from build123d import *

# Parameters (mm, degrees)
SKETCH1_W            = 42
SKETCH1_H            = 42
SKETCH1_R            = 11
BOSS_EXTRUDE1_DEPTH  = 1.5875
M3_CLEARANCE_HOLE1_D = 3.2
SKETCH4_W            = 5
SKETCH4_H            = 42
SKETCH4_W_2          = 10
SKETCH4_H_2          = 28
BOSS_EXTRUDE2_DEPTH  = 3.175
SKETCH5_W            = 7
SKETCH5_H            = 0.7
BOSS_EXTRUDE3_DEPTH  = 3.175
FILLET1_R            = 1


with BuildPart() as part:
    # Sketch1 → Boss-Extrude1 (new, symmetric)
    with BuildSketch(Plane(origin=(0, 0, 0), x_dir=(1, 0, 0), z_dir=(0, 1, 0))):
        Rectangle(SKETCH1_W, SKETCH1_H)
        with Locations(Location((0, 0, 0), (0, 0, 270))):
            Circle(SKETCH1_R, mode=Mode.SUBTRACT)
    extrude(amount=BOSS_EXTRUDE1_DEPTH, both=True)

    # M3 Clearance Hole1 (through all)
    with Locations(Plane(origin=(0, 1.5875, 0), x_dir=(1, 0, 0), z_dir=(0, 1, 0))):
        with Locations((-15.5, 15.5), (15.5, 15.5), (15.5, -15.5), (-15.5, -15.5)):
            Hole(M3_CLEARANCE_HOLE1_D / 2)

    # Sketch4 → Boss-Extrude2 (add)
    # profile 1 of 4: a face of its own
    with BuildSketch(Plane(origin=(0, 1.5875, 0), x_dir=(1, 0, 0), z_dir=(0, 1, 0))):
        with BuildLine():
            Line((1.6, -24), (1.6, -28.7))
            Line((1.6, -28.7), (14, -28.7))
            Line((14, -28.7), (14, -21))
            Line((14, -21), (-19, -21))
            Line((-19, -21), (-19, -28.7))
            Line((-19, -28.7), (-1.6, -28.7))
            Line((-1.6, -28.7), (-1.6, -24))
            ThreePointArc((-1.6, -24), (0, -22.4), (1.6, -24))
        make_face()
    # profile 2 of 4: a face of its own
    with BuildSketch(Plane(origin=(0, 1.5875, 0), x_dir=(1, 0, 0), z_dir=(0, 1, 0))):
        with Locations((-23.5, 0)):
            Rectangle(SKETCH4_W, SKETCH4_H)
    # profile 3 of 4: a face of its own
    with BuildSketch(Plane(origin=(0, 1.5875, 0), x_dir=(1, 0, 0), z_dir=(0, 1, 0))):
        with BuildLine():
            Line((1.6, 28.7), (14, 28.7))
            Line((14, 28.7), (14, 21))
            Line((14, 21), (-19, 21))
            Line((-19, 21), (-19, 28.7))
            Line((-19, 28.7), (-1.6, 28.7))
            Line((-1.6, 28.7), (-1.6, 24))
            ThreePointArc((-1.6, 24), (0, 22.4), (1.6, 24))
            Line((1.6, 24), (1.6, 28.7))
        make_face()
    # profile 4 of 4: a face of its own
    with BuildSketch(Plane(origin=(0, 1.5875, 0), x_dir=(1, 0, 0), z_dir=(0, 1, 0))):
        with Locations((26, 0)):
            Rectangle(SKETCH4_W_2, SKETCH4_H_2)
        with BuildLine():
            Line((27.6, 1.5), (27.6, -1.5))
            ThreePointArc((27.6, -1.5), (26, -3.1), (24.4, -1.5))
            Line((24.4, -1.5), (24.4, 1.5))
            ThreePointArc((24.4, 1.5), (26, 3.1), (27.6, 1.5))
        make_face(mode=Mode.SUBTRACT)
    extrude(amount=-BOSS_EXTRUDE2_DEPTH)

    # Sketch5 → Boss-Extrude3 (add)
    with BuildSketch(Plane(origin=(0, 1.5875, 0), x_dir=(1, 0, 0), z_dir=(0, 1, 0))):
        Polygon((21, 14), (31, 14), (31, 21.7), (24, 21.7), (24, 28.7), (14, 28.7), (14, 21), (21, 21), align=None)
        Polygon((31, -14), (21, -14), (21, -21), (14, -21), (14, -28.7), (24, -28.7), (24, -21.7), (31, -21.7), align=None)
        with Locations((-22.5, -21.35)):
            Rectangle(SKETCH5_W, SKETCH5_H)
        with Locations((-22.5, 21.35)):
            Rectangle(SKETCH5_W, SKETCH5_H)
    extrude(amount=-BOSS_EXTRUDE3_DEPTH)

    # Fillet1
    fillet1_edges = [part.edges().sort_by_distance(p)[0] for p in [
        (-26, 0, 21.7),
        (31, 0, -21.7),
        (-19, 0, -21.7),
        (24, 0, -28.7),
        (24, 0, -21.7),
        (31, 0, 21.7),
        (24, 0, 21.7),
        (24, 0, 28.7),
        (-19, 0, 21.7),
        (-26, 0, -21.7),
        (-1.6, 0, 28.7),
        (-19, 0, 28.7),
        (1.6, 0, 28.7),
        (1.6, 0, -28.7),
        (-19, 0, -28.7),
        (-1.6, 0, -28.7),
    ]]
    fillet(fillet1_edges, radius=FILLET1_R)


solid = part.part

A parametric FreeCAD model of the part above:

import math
import FreeCAD as App
import Part
import Sketcher

V = App.Vector
Q = App.Units.Quantity


def edges_at(feature, points):
    """Names of the edges that pass closest to the given points."""
    edges = feature.Shape.Edges
    near = lambda p: min(range(len(edges)), key=lambda i: edges[i].distToShape(Part.Vertex(*p))[0])
    return sorted({f"Edge{near(p) + 1}" for p in points})


def add_polygon(sketch, points):
    """Adds a closed chain of lines whose ends are joined by coincident constraints."""
    first, n = sketch.GeometryCount, len(points)
    for a, b in zip(points, points[1:] + points[:1]):
        sketch.addGeometry(Part.LineSegment(App.Vector(*a, 0), App.Vector(*b, 0)), False)
    for i in range(n):
        sketch.addConstraint(Sketcher.Constraint("Coincident", first + i, 2, first + (i + 1) % n, 1))

doc = App.newDocument("Part")
body = doc.addObject("PartDesign::Body", "Body")

# Sketch on XZ plane
sketch1 = body.newObject("Sketcher::SketchObject", "Sketch")
sketch1.AttachmentSupport = (doc.getObject("XZ_Plane"), [""])
sketch1.MapMode = "FlatFace"
add_polygon(sketch1, [(-21, -21), (-21, 21), (21, 21), (21, -21)])  # lines 0-3
sketch1.addGeometry(Part.Circle(V(0, 0, 0), V(0, 0, 1), 11), False)  # 4
sketch1.addConstraint(Sketcher.Constraint("Vertical", 0))
sketch1.addConstraint(Sketcher.Constraint("Horizontal", 1))
sketch1.addConstraint(Sketcher.Constraint("Vertical", 2))
sketch1.addConstraint(Sketcher.Constraint("Horizontal", 3))
sketch1.addConstraint(Sketcher.Constraint("Coincident", 4, 3, -1, 1))
sketch1.addConstraint(Sketcher.Constraint("Symmetric", 0, 2, 2, 2, -1, 1))
sketch1.addConstraint(Sketcher.Constraint("Equal", 3, 0))
sketch1.addConstraint(Sketcher.Constraint("Diameter", 4, Q("22 mm")))
sketch1.addConstraint(Sketcher.Constraint("DistanceX", 1, 1, 1, 2, Q("42 mm")))
pad1 = body.newObject("PartDesign::Pad", "Pad")
pad1.Profile = sketch1
pad1.Length = 3.175
pad1.Midplane = True

# Sketch on XZ plane
sketch2 = body.newObject("Sketcher::SketchObject", "Sketch001")
sketch2.AttachmentSupport = (doc.getObject("XZ_Plane"), [""])
sketch2.MapMode = "FlatFace"
sketch2.AttachmentOffset = App.Placement(V(0, 0, -1.5875), App.Rotation())
sketch2.addGeometry(Part.Circle(V(-15.5, -15.5, 0), V(0, 0, 1), 1.6), False)
sketch2.addGeometry(Part.Circle(V(15.5, -15.5, 0), V(0, 0, 1), 1.6), False)
sketch2.addGeometry(Part.Circle(V(15.5, 15.5, 0), V(0, 0, 1), 1.6), False)
sketch2.addGeometry(Part.Circle(V(-15.5, 15.5, 0), V(0, 0, 1), 1.6), False)
sketch2.addConstraint(Sketcher.Constraint("Equal", 0, 1))
sketch2.addConstraint(Sketcher.Constraint("Equal", 1, 2))
sketch2.addConstraint(Sketcher.Constraint("Equal", 2, 3))
sketch2.addConstraint(Sketcher.Constraint("Symmetric", 0, 3, 2, 3, -1, 1))
sketch2.addConstraint(Sketcher.Constraint("Symmetric", 1, 3, 3, 3, -1, 1))
sketch2.addConstraint(Sketcher.Constraint("Symmetric", 0, 3, 1, 3, -2))
sketch2.addConstraint(Sketcher.Constraint("Diameter", 0, Q("3.2 mm")))
sketch2.addConstraint(Sketcher.Constraint("DistanceX", 0, 3, 1, 3, Q("31 mm")))
sketch2.addConstraint(Sketcher.Constraint("DistanceY", 1, 3, 2, 3, Q("31 mm")))
doc.recompute()
hole = body.newObject("PartDesign::Hole", "Hole")
hole.Profile = sketch2
hole.ThreadType = "None"
hole.Diameter = 3.2
hole.DepthType = "ThroughAll"
hole.Reversed = True

# Sketch on XZ plane
sketch3 = body.newObject("Sketcher::SketchObject", "Sketch002")
sketch3.AttachmentSupport = (doc.getObject("XZ_Plane"), [""])
sketch3.MapMode = "FlatFace"
sketch3.AttachmentOffset = App.Placement(V(0, 0, -1.5875), App.Rotation())
sketch3.addGeometry(Part.LineSegment(V(1.6, 24, 0), V(1.6, 28.7, 0)), False)  # 0
sketch3.addGeometry(Part.LineSegment(V(1.6, 28.7, 0), V(14, 28.7, 0)), False)  # 1
sketch3.addGeometry(Part.LineSegment(V(14, 28.7, 0), V(14, 21, 0)), False)  # 2
sketch3.addGeometry(Part.LineSegment(V(14, 21, 0), V(-19, 21, 0)), False)  # 3
sketch3.addGeometry(Part.LineSegment(V(-19, 21, 0), V(-19, 28.7, 0)), False)  # 4
sketch3.addGeometry(Part.LineSegment(V(-19, 28.7, 0), V(-1.6, 28.7, 0)), False)  # 5
sketch3.addGeometry(Part.LineSegment(V(-1.6, 28.7, 0), V(-1.6, 24, 0)), False)  # 6
sketch3.addGeometry(Part.ArcOfCircle(Part.Circle(V(0, 24, 0), V(0, 0, 1), 1.6), math.radians(180), math.radians(360)), False)  # 7
add_polygon(sketch3, [(-26, -21), (-26, 21), (-21, 21), (-21, -21)])  # lines 8-11
sketch3.addGeometry(Part.LineSegment(V(14, -28.7, 0), V(1.6, -28.7, 0)), False)  # 12
sketch3.addGeometry(Part.LineSegment(V(1.6, -28.7, 0), V(1.6, -24, 0)), False)  # 13
sketch3.addGeometry(Part.ArcOfCircle(Part.Circle(V(0, -24, 0), V(0, 0, 1), 1.6), math.radians(0), math.radians(180)), False)  # 14
sketch3.addGeometry(Part.LineSegment(V(-1.6, -24, 0), V(-1.6, -28.7, 0)), False)  # 15
sketch3.addGeometry(Part.LineSegment(V(-1.6, -28.7, 0), V(-19, -28.7, 0)), False)  # 16
sketch3.addGeometry(Part.LineSegment(V(-19, -28.7, 0), V(-19, -21, 0)), False)  # 17
sketch3.addGeometry(Part.LineSegment(V(-19, -21, 0), V(14, -21, 0)), False)  # 18
sketch3.addGeometry(Part.LineSegment(V(14, -21, 0), V(14, -28.7, 0)), False)  # 19
add_polygon(sketch3, [(21, -14), (21, 14), (31, 14), (31, -14)])  # lines 20-23
sketch3.addGeometry(Part.ArcOfCircle(Part.Circle(V(26, -1.5, 0), V(0, 0, 1), 1.6), math.radians(180), math.radians(360)), False)  # 24
sketch3.addGeometry(Part.LineSegment(V(27.6, -1.5, 0), V(27.6, 1.5, 0)), False)  # 25
sketch3.addGeometry(Part.ArcOfCircle(Part.Circle(V(26, 1.5, 0), V(0, 0, 1), 1.6), math.radians(0), math.radians(180)), False)  # 26
sketch3.addGeometry(Part.LineSegment(V(24.4, 1.5, 0), V(24.4, -1.5, 0)), False)  # 27
sketch3.addConstraint(Sketcher.Constraint("Coincident", 0, 2, 1, 1))
sketch3.addConstraint(Sketcher.Constraint("Coincident", 1, 2, 2, 1))
sketch3.addConstraint(Sketcher.Constraint("Coincident", 2, 2, 3, 1))
sketch3.addConstraint(Sketcher.Constraint("Coincident", 3, 2, 4, 1))
sketch3.addConstraint(Sketcher.Constraint("Coincident", 4, 2, 5, 1))
sketch3.addConstraint(Sketcher.Constraint("Coincident", 5, 2, 6, 1))
sketch3.addConstraint(Sketcher.Constraint("Tangent", 6, 2, 7, 1))
sketch3.addConstraint(Sketcher.Constraint("Tangent", 7, 2, 0, 1))
sketch3.addConstraint(Sketcher.Constraint("Coincident", 12, 2, 13, 1))
sketch3.addConstraint(Sketcher.Constraint("Tangent", 13, 2, 14, 1))
sketch3.addConstraint(Sketcher.Constraint("Tangent", 14, 2, 15, 1))
sketch3.addConstraint(Sketcher.Constraint("Coincident", 15, 2, 16, 1))
sketch3.addConstraint(Sketcher.Constraint("Coincident", 16, 2, 17, 1))
sketch3.addConstraint(Sketcher.Constraint("Coincident", 17, 2, 18, 1))
sketch3.addConstraint(Sketcher.Constraint("Coincident", 18, 2, 19, 1))
sketch3.addConstraint(Sketcher.Constraint("Coincident", 19, 2, 12, 1))
sketch3.addConstraint(Sketcher.Constraint("Tangent", 24, 2, 25, 1))
sketch3.addConstraint(Sketcher.Constraint("Tangent", 25, 2, 26, 1))
sketch3.addConstraint(Sketcher.Constraint("Tangent", 26, 2, 27, 1))
sketch3.addConstraint(Sketcher.Constraint("Tangent", 27, 2, 24, 1))
sketch3.addConstraint(Sketcher.Constraint("Vertical", 0))
sketch3.addConstraint(Sketcher.Constraint("Horizontal", 1))
sketch3.addConstraint(Sketcher.Constraint("Vertical", 2))
sketch3.addConstraint(Sketcher.Constraint("Horizontal", 3))
sketch3.addConstraint(Sketcher.Constraint("Vertical", 4))
sketch3.addConstraint(Sketcher.Constraint("Horizontal", 5))
sketch3.addConstraint(Sketcher.Constraint("Vertical", 6))
sketch3.addConstraint(Sketcher.Constraint("Vertical", 8))
sketch3.addConstraint(Sketcher.Constraint("Horizontal", 9))
sketch3.addConstraint(Sketcher.Constraint("Vertical", 10))
sketch3.addConstraint(Sketcher.Constraint("Horizontal", 11))
sketch3.addConstraint(Sketcher.Constraint("Horizontal", 12))
sketch3.addConstraint(Sketcher.Constraint("Vertical", 13))
sketch3.addConstraint(Sketcher.Constraint("Vertical", 15))
sketch3.addConstraint(Sketcher.Constraint("Horizontal", 16))
sketch3.addConstraint(Sketcher.Constraint("Vertical", 17))
sketch3.addConstraint(Sketcher.Constraint("Horizontal", 18))
sketch3.addConstraint(Sketcher.Constraint("Vertical", 19))
sketch3.addConstraint(Sketcher.Constraint("Vertical", 20))
sketch3.addConstraint(Sketcher.Constraint("Horizontal", 21))
sketch3.addConstraint(Sketcher.Constraint("Vertical", 22))
sketch3.addConstraint(Sketcher.Constraint("Horizontal", 23))
sketch3.addConstraint(Sketcher.Constraint("Vertical", 25))
sketch3.addConstraint(Sketcher.Constraint("Vertical", 27))
sketch3.addConstraint(Sketcher.Constraint("Equal", 7, 14))
sketch3.addConstraint(Sketcher.Constraint("Equal", 14, 24))
sketch3.addConstraint(Sketcher.Constraint("Symmetric", 7, 3, 14, 3, -1, 1))
sketch3.addConstraint(Sketcher.Constraint("Symmetric", 0, 2, 5, 2, -2))
sketch3.addConstraint(Sketcher.Constraint("Symmetric", 4, 2, 16, 2, -1))
sketch3.addConstraint(Sketcher.Constraint("Symmetric", 2, 2, 18, 2, -1))
sketch3.addConstraint(Sketcher.Constraint("Horizontal", 3, 2, 8, 2))
sketch3.addConstraint(Sketcher.Constraint("Horizontal", 12, 2, 15, 2))
sketch3.addConstraint(Sketcher.Constraint("Horizontal", 11, 2, 17, 2))
sketch3.addConstraint(Sketcher.Constraint("Radius", 7, Q("1.6 mm")))
sketch3.addConstraint(Sketcher.Constraint("DistanceX", 3, 2, 3, 1, Q("33 mm")))
sketch3.addConstraint(Sketcher.Constraint("DistanceX", 9, 1, 9, 2, Q("5 mm")))
sketch3.addConstraint(Sketcher.Constraint("DistanceX", 21, 1, 21, 2, Q("10 mm")))
sketch3.addConstraint(Sketcher.Constraint("DistanceY", 8, 1, 8, 2, Q("42 mm")))
sketch3.addConstraint(Sketcher.Constraint("DistanceY", 20, 1, 20, 2, Q("28 mm")))
sketch3.addConstraint(Sketcher.Constraint("DistanceY", 25, 1, 25, 2, Q("3 mm")))
sketch3.addConstraint(Sketcher.Constraint("DistanceX", 1, 1, 1, 2, Q("12.4 mm")))
sketch3.addConstraint(Sketcher.Constraint("DistanceY", 0, 1, 0, 2, Q("4.7 mm")))
sketch3.addConstraint(Sketcher.Constraint("DistanceY", 2, 2, 2, 1, Q("7.7 mm")))
sketch3.addConstraint(Sketcher.Constraint("DistanceX", -1, 1, 24, 3, Q("26 mm")))
sketch3.addConstraint(Sketcher.Constraint("DistanceX", 8, 2, -1, 1, Q("26 mm")))
sketch3.addConstraint(Sketcher.Constraint("DistanceX", -1, 1, 20, 2, Q("21 mm")))
sketch3.addConstraint(Sketcher.Constraint("DistanceY", -1, 1, 20, 2, Q("14 mm")))
sketch3.addConstraint(Sketcher.Constraint("DistanceY", 24, 3, -1, 1, Q("1.5 mm")))
pad2 = body.newObject("PartDesign::Pad", "Pad001")
pad2.Profile = sketch3
pad2.Length = 3.175

# Sketch on XZ plane
sketch4 = body.newObject("Sketcher::SketchObject", "Sketch003")
sketch4.AttachmentSupport = (doc.getObject("XZ_Plane"), [""])
sketch4.MapMode = "FlatFace"
sketch4.AttachmentOffset = App.Placement(V(0, 0, -1.5875), App.Rotation())
add_polygon(sketch4, [(21, -14), (31, -14), (31, -21.7), (24, -21.7), (24, -28.7), (14, -28.7), (14, -21), (21, -21)])  # lines 0-7
add_polygon(sketch4, [(31, 14), (21, 14), (21, 21), (14, 21), (14, 28.7), (24, 28.7), (24, 21.7), (31, 21.7)])  # lines 8-15
add_polygon(sketch4, [(-26, 21), (-26, 21.7), (-19, 21.7), (-19, 21)])  # lines 16-19
add_polygon(sketch4, [(-26, -21.7), (-26, -21), (-19, -21), (-19, -21.7)])  # lines 20-23
sketch4.addConstraint(Sketcher.Constraint("Horizontal", 0))
sketch4.addConstraint(Sketcher.Constraint("Vertical", 1))
sketch4.addConstraint(Sketcher.Constraint("Horizontal", 2))
sketch4.addConstraint(Sketcher.Constraint("Vertical", 3))
sketch4.addConstraint(Sketcher.Constraint("Horizontal", 4))
sketch4.addConstraint(Sketcher.Constraint("Vertical", 5))
sketch4.addConstraint(Sketcher.Constraint("Horizontal", 6))
sketch4.addConstraint(Sketcher.Constraint("Vertical", 7))
sketch4.addConstraint(Sketcher.Constraint("Horizontal", 8))
sketch4.addConstraint(Sketcher.Constraint("Vertical", 9))
sketch4.addConstraint(Sketcher.Constraint("Horizontal", 10))
sketch4.addConstraint(Sketcher.Constraint("Vertical", 11))
sketch4.addConstraint(Sketcher.Constraint("Horizontal", 12))
sketch4.addConstraint(Sketcher.Constraint("Vertical", 13))
sketch4.addConstraint(Sketcher.Constraint("Horizontal", 14))
sketch4.addConstraint(Sketcher.Constraint("Vertical", 15))
sketch4.addConstraint(Sketcher.Constraint("Vertical", 16))
sketch4.addConstraint(Sketcher.Constraint("Horizontal", 17))
sketch4.addConstraint(Sketcher.Constraint("Vertical", 18))
sketch4.addConstraint(Sketcher.Constraint("Horizontal", 19))
sketch4.addConstraint(Sketcher.Constraint("Vertical", 20))
sketch4.addConstraint(Sketcher.Constraint("Horizontal", 21))
sketch4.addConstraint(Sketcher.Constraint("Vertical", 22))
sketch4.addConstraint(Sketcher.Constraint("Horizontal", 23))
sketch4.addConstraint(Sketcher.Constraint("Symmetric", 7, 2, 8, 2, -1))
sketch4.addConstraint(Sketcher.Constraint("Symmetric", 5, 2, 10, 2, -1))
sketch4.addConstraint(Sketcher.Constraint("Symmetric", 3, 2, 12, 2, -1))
sketch4.addConstraint(Sketcher.Constraint("Symmetric", 1, 2, 14, 2, -1))
sketch4.addConstraint(Sketcher.Constraint("Symmetric", 19, 2, 20, 2, -1))
sketch4.addConstraint(Sketcher.Constraint("Symmetric", 17, 2, 22, 2, -1))
sketch4.addConstraint(Sketcher.Constraint("Horizontal", 14, 2, 16, 2))
sketch4.addConstraint(Sketcher.Constraint("Horizontal", 10, 2, 18, 2))
sketch4.addConstraint(Sketcher.Constraint("Equal", 0, 4))
sketch4.addConstraint(Sketcher.Constraint("Equal", 14, 17))
sketch4.addConstraint(Sketcher.Constraint("Equal", 23, 3))
sketch4.addConstraint(Sketcher.Constraint("Equal", 1, 5))
sketch4.addConstraint(Sketcher.Constraint("DistanceX", 0, 1, 0, 2, Q("10 mm")))
sketch4.addConstraint(Sketcher.Constraint("DistanceX", 2, 2, 2, 1, Q("7 mm")))
sketch4.addConstraint(Sketcher.Constraint("DistanceY", 1, 2, 1, 1, Q("7.7 mm")))
sketch4.addConstraint(Sketcher.Constraint("DistanceX", -1, 1, 0, 2, Q("31 mm")))
sketch4.addConstraint(Sketcher.Constraint("DistanceY", 0, 2, -1, 1, Q("14 mm")))
sketch4.addConstraint(Sketcher.Constraint("DistanceX", 16, 2, -1, 1, Q("26 mm")))
pad3 = body.newObject("PartDesign::Pad", "Pad002")
pad3.Profile = sketch4
pad3.Length = 3.175
doc.recompute()

fillet = body.newObject("PartDesign::Fillet", "Fillet")
fillet.Base = (pad3, edges_at(pad3, [
    (-26, 0, 21.7),
    (31, 0, -21.7),
    (-19, 0, -21.7),
    (24, 0, -28.7),
    (24, 0, -21.7),
    (31, 0, 21.7),
    (24, 0, 21.7),
    (24, 0, 28.7),
    (-19, 0, 21.7),
    (-26, 0, -21.7),
    (-1.6, 0, 28.7),
    (-19, 0, 28.7),
    (1.6, 0, 28.7),
    (1.6, 0, -28.7),
    (-19, 0, -28.7),
    (-1.6, 0, -28.7),
]))
fillet.Radius = 1

doc.recompute()
